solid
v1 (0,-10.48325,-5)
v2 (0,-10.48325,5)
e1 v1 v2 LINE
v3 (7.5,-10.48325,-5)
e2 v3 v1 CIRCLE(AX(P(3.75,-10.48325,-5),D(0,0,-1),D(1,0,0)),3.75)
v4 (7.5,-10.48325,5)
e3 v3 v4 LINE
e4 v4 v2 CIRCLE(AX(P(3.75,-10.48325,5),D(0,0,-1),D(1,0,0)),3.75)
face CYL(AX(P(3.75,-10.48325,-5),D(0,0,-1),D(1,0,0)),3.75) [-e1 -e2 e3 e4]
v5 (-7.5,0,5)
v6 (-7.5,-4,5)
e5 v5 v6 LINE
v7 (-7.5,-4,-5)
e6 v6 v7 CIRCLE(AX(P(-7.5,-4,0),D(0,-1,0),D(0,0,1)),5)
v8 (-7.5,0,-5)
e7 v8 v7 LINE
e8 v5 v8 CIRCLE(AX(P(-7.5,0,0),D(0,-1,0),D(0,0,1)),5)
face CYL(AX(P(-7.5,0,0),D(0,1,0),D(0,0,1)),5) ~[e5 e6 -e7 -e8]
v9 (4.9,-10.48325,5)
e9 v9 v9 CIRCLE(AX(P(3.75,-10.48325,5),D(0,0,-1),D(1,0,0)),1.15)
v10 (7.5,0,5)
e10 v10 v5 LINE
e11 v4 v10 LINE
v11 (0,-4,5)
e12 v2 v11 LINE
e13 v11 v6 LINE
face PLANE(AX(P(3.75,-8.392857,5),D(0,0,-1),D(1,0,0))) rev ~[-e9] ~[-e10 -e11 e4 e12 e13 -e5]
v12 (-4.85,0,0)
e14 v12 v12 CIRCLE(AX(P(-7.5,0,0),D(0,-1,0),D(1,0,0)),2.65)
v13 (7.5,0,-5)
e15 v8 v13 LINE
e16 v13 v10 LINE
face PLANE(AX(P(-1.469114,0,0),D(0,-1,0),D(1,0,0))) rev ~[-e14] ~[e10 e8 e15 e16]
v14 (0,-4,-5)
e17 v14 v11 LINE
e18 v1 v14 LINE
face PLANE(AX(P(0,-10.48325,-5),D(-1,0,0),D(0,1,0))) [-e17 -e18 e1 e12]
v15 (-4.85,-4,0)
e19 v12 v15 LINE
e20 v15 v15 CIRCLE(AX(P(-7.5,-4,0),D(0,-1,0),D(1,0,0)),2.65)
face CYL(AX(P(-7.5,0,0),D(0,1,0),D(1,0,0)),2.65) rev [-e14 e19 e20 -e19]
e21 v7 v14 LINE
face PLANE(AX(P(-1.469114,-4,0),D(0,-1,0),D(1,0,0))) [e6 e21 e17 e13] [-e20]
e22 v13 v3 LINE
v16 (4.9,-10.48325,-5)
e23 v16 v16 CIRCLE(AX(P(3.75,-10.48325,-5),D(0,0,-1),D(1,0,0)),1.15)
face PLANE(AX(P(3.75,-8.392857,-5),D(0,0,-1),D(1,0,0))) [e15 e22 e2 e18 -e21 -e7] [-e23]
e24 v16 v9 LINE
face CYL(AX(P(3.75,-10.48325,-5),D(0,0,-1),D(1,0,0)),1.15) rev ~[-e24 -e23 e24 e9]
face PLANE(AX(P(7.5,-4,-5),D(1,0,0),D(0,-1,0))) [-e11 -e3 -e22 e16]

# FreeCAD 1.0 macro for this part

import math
import FreeCAD as App
import Part
import Sketcher
Q = App.Units.Quantity

doc = App.newDocument("Part")
body = doc.addObject("PartDesign::Body", "Body")

# Sketch on XZ plane
sketch1 = body.newObject("Sketcher::SketchObject", "Sketch")
sketch1.AttachmentSupport = (doc.getObject("XZ_Plane"), [""])
sketch1.MapMode = "FlatFace"
sketch1.addGeometry([
    Part.LineSegment(App.Vector(-7.5, -5, 0), App.Vector(7.5, -5, 0)),  # 0
    Part.LineSegment(App.Vector(7.5, -5, 0), App.Vector(7.5, 5, 0)),  # 1
    Part.LineSegment(App.Vector(7.5, 5, 0), App.Vector(-7.5, 5, 0)),  # 2
    Part.ArcOfCircle(Part.Circle(App.Vector(-7.5, 0, 0), App.Vector(0, 0, 1), 5), math.radians(90), math.radians(270)),  # 3
    Part.Circle(App.Vector(-7.5, 0, 0), App.Vector(0, 0, 1), 2.6),  # 4
], False)
sketch1.addConstraint([
    Sketcher.Constraint("Coincident", 0, 2, 1, 1),
    Sketcher.Constraint("Coincident", 1, 2, 2, 1),
    Sketcher.Constraint("Tangent", 2, 2, 3, 1),
    Sketcher.Constraint("Tangent", 3, 2, 0, 1),
    Sketcher.Constraint("Horizontal", 0),
    Sketcher.Constraint("Vertical", 1),
    Sketcher.Constraint("Horizontal", 2),
    Sketcher.Constraint("Coincident", 4, 3, 3, 3),
    Sketcher.Constraint("Symmetric", 0, 2, 2, 2, -1, 1),
    Sketcher.Constraint("Radius", 3, Q("5 mm")),
    Sketcher.Constraint("Diameter", 4, Q("5.3 mm")),
    Sketcher.Constraint("DistanceX", 0, 1, 0, 2, Q("15 mm")),
])
pad1 = body.newObject("PartDesign::Pad", "Pad")
pad1.Profile = sketch1
pad1.Length = 4

# Sketch on XY plane
sketch2 = body.newObject("Sketcher::SketchObject", "Sketch001")
sketch2.AttachmentSupport = (doc.getObject("XY_Plane"), [""])
sketch2.MapMode = "FlatFace"
sketch2.AttachmentOffset = App.Placement(App.Vector(0, 0, -5), App.Rotation())
sketch2.addGeometry([
    Part.LineSegment(App.Vector(0, -4, 0), App.Vector(7.5, -4, 0)),  # 0
    Part.LineSegment(App.Vector(7.5, -4, 0), App.Vector(7.5, -10.5, 0)),  # 1
    Part.ArcOfCircle(Part.Circle(App.Vector(3.8, -10.5, 0), App.Vector(0, 0, 1), 3.8), math.radians(180), math.radians(360)),  # 2
    Part.LineSegment(App.Vector(0, -10.5, 0), App.Vector(0, -4, 0)),  # 3
    Part.Circle(App.Vector(3.8, -10.5, 0), App.Vector(0, 0, 1), 1.1),  # 4
], False)
sketch2.addConstraint([
    Sketcher.Constraint("Coincident", 0, 2, 1, 1),
    Sketcher.Constraint("Tangent", 1, 2, 2, 2),
    Sketcher.Constraint("Tangent", 2, 1, 3, 1),
    Sketcher.Constraint("Coincident", 3, 2, 0, 1),
    Sketcher.Constraint("Horizontal", 0),
    Sketcher.Constraint("Vertical", 1),
    Sketcher.Constraint("Vertical", 3),
    Sketcher.Constraint("Coincident", 4, 3, 2, 3),
    Sketcher.Constraint("PointOnObject", 2, 1, -2),
    Sketcher.Constraint("Diameter", 4, Q("2.3 mm")),
    Sketcher.Constraint("Radius", 2, Q("3.75 mm")),
    Sketcher.Constraint("DistanceY", 0, 2, -1, 1, Q("4 mm")),
    Sketcher.Constraint("DistanceY", 1, 2, 1, 1, Q("6.48325 mm")),
])
pad2 = body.newObject("PartDesign::Pad", "Pad001")
pad2.Profile = sketch2
pad2.Length = 10

doc.recompute()
